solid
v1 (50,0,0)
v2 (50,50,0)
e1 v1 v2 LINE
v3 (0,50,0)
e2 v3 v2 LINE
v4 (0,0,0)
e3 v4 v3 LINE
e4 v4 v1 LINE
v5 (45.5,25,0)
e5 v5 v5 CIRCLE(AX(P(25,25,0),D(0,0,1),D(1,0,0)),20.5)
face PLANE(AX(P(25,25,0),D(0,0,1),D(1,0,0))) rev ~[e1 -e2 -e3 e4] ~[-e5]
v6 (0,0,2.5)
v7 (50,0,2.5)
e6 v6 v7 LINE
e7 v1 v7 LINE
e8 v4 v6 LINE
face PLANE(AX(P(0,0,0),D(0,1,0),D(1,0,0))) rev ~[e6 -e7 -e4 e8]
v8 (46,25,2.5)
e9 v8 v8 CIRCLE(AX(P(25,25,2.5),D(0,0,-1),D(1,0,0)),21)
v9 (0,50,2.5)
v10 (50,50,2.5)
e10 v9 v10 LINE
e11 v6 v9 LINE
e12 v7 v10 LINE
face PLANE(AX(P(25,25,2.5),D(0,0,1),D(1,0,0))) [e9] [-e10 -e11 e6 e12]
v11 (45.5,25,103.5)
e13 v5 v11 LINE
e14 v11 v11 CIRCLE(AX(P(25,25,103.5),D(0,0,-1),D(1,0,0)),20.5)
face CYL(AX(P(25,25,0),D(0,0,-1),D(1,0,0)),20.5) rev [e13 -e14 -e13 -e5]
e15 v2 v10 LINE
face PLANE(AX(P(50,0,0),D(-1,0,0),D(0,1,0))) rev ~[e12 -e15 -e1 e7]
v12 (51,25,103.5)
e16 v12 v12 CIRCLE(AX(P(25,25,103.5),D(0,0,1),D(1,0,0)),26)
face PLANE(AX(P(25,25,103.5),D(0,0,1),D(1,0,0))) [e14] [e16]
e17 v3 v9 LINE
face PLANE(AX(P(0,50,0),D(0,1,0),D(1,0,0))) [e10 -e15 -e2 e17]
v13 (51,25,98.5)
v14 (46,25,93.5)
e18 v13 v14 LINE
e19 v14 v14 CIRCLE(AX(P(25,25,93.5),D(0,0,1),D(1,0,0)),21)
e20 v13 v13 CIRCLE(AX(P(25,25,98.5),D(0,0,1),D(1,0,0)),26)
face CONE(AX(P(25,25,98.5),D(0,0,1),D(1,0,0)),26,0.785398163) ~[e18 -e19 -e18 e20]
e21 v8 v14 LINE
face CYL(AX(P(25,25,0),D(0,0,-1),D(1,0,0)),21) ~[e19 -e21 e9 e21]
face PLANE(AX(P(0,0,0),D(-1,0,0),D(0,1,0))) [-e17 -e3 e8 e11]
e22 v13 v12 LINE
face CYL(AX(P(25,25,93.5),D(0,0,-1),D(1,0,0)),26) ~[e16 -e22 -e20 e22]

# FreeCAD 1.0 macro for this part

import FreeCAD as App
import Part
import Sketcher
from FreeCAD import Vector
Q = App.Units.Quantity


def edges_at(feature, points):
    """Names of the edges that pass closest to the given points."""
    edges = feature.Shape.Edges
    near = lambda p: min(range(len(edges)), key=lambda i: edges[i].distToShape(Part.Vertex(*p))[0])
    return sorted({f"Edge{near(p) + 1}" for p in points})


def add_polygon(sketch, points):
    """Adds a closed chain of lines whose ends are joined by coincident constraints."""
    first, n = sketch.GeometryCount, len(points)
    for a, b in zip(points, points[1:] + points[:1]):
        sketch.addGeometry(Part.LineSegment(App.Vector(*a, 0), App.Vector(*b, 0)), False)
    for i in range(n):
        sketch.addConstraint(Sketcher.Constraint("Coincident", first + i, 2, first + (i + 1) % n, 1))

doc = App.newDocument("Part")
params = doc.addObject("Spreadsheet::Sheet", "Params")
for row, (alias, value) in enumerate([
    ("sketch1_diameter", "41 mm"),
    ("pad1_length", "120 mm"),
    ("sketch2_diameter", "52 mm"),
    ("pad2_length", "10 mm"),
    ("chamfer_size", "5 mm"),
    ("sketch3_diameter", "42 mm"),
    ("pad3_length", "100 mm"),
    ("sketch4_width", "50 mm"),
    ("pad4_length", "2.5 mm"),
], start=1):
    params.set(f"A{row}", alias)
    params.set(f"B{row}", "=" + value)
    params.setAlias(f"B{row}", alias)

body = doc.addObject("PartDesign::Body", "Body")

# Sketch on XY plane
sketch1 = body.newObject("Sketcher::SketchObject", "Sketch")
sketch1.AttachmentSupport = (doc.getObject("XY_Plane"), [""])
sketch1.MapMode = "FlatFace"
sketch1.addGeometry(Part.Circle(Vector(25, 25, 0), Vector(0, 0, 1), 20), False)
sketch1.addConstraint(Sketcher.Constraint("Diameter", 0, Q("41 mm")))
sketch1.addConstraint(Sketcher.Constraint("DistanceX", -1, 1, 0, 3, Q("25 mm")))
sketch1.addConstraint(Sketcher.Constraint("DistanceY", -1, 1, 0, 3, Q("25 mm")))
sketch1.setExpression("Constraints[0]", "Params.sketch1_diameter")
pad1 = body.newObject("PartDesign::Pad", "Pad")
pad1.Profile = sketch1
pad1.setExpression("Length", "Params.pad1_length")
body2 = doc.addObject("PartDesign::Body", "Body001")

# Sketch on XY plane
sketch2 = body2.newObject("Sketcher::SketchObject", "Sketch001")
sketch2.AttachmentSupport = (doc.getObject("XY_Plane001"), [""])
sketch2.MapMode = "FlatFace"
sketch2.AttachmentOffset = App.Placement(Vector(0, 0, 93.5), App.Rotation())
sketch2.addGeometry(Part.Circle(Vector(25, 25, 0), Vector(0, 0, 1), 26), False)
sketch2.addConstraint(Sketcher.Constraint("Diameter", 0, Q("52 mm")))
sketch2.addConstraint(Sketcher.Constraint("DistanceX", -1, 1, 0, 3, Q("25 mm")))
sketch2.addConstraint(Sketcher.Constraint("DistanceY", -1, 1, 0, 3, Q("25 mm")))
sketch2.setExpression("Constraints[0]", "Params.sketch2_diameter")
pad2 = body2.newObject("PartDesign::Pad", "Pad001")
pad2.Profile = sketch2
pad2.setExpression("Length", "Params.pad2_length")
doc.recompute()

chamfer = body2.newObject("PartDesign::Chamfer", "Chamfer")
chamfer.Base = (pad2, edges_at(pad2, [(-1, 25, 93.5)]))
chamfer.setExpression("Size", "Params.chamfer_size")
body3 = doc.addObject("PartDesign::Body", "Body002")

# Sketch on XY plane
sketch3 = body3.newObject("Sketcher::SketchObject", "Sketch002")
sketch3.AttachmentSupport = (doc.getObject("XY_Plane002"), [""])
sketch3.MapMode = "FlatFace"
sketch3.addGeometry(Part.Circle(Vector(25, 25, 0), Vector(0, 0, 1), 21), False)
sketch3.addConstraint(Sketcher.Constraint("Diameter", 0, Q("42 mm")))
sketch3.addConstraint(Sketcher.Constraint("DistanceX", -1, 1, 0, 3, Q("25 mm")))
sketch3.addConstraint(Sketcher.Constraint("DistanceY", -1, 1, 0, 3, Q("25 mm")))
sketch3.setExpression("Constraints[0]", "Params.sketch3_diameter")
pad3 = body3.newObject("PartDesign::Pad", "Pad002")
pad3.Profile = sketch3
pad3.setExpression("Length", "Params.pad3_length")
doc.recompute()

boolean = body3.newObject("PartDesign::Boolean", "Boolean")
boolean.Type = "Fuse"
boolean.addObjects([body2])
body4 = doc.addObject("PartDesign::Body", "Body003")

# Sketch on XY plane
sketch4 = body4.newObject("Sketcher::SketchObject", "Sketch003")
sketch4.AttachmentSupport = (doc.getObject("XY_Plane003"), [""])
sketch4.MapMode = "FlatFace"
add_polygon(sketch4, [(0, 50), (0, 0), (50, 0), (50, 50)])  # lines 0-3
sketch4.addConstraint(Sketcher.Constraint("Vertical", 0))
sketch4.addConstraint(Sketcher.Constraint("Horizontal", 1))
sketch4.addConstraint(Sketcher.Constraint("Vertical", 2))
sketch4.addConstraint(Sketcher.Constraint("Horizontal", 3))
sketch4.addConstraint(Sketcher.Constraint("Coincident", 0, 2, -1, 1))
sketch4.addConstraint(Sketcher.Constraint("Equal", 3, 0))
sketch4.addConstraint(Sketcher.Constraint("DistanceX", 1, 1, 1, 2, Q("50 mm")))
sketch4.setExpression("Constraints[10]", "Params.sketch4_width")
pad4 = body4.newObject("PartDesign::Pad", "Pad003")
pad4.Profile = sketch4
pad4.setExpression("Length", "Params.pad4_length")
doc.recompute()

boolean2 = body4.newObject("PartDesign::Boolean", "Boolean001")
boolean2.Type = "Fuse"
boolean2.addObjects([body3])
doc.recompute()

boolean3 = body4.newObject("PartDesign::Boolean", "Boolean002")
boolean3.Type = "Cut"
boolean3.addObjects([body])

doc.recompute()
